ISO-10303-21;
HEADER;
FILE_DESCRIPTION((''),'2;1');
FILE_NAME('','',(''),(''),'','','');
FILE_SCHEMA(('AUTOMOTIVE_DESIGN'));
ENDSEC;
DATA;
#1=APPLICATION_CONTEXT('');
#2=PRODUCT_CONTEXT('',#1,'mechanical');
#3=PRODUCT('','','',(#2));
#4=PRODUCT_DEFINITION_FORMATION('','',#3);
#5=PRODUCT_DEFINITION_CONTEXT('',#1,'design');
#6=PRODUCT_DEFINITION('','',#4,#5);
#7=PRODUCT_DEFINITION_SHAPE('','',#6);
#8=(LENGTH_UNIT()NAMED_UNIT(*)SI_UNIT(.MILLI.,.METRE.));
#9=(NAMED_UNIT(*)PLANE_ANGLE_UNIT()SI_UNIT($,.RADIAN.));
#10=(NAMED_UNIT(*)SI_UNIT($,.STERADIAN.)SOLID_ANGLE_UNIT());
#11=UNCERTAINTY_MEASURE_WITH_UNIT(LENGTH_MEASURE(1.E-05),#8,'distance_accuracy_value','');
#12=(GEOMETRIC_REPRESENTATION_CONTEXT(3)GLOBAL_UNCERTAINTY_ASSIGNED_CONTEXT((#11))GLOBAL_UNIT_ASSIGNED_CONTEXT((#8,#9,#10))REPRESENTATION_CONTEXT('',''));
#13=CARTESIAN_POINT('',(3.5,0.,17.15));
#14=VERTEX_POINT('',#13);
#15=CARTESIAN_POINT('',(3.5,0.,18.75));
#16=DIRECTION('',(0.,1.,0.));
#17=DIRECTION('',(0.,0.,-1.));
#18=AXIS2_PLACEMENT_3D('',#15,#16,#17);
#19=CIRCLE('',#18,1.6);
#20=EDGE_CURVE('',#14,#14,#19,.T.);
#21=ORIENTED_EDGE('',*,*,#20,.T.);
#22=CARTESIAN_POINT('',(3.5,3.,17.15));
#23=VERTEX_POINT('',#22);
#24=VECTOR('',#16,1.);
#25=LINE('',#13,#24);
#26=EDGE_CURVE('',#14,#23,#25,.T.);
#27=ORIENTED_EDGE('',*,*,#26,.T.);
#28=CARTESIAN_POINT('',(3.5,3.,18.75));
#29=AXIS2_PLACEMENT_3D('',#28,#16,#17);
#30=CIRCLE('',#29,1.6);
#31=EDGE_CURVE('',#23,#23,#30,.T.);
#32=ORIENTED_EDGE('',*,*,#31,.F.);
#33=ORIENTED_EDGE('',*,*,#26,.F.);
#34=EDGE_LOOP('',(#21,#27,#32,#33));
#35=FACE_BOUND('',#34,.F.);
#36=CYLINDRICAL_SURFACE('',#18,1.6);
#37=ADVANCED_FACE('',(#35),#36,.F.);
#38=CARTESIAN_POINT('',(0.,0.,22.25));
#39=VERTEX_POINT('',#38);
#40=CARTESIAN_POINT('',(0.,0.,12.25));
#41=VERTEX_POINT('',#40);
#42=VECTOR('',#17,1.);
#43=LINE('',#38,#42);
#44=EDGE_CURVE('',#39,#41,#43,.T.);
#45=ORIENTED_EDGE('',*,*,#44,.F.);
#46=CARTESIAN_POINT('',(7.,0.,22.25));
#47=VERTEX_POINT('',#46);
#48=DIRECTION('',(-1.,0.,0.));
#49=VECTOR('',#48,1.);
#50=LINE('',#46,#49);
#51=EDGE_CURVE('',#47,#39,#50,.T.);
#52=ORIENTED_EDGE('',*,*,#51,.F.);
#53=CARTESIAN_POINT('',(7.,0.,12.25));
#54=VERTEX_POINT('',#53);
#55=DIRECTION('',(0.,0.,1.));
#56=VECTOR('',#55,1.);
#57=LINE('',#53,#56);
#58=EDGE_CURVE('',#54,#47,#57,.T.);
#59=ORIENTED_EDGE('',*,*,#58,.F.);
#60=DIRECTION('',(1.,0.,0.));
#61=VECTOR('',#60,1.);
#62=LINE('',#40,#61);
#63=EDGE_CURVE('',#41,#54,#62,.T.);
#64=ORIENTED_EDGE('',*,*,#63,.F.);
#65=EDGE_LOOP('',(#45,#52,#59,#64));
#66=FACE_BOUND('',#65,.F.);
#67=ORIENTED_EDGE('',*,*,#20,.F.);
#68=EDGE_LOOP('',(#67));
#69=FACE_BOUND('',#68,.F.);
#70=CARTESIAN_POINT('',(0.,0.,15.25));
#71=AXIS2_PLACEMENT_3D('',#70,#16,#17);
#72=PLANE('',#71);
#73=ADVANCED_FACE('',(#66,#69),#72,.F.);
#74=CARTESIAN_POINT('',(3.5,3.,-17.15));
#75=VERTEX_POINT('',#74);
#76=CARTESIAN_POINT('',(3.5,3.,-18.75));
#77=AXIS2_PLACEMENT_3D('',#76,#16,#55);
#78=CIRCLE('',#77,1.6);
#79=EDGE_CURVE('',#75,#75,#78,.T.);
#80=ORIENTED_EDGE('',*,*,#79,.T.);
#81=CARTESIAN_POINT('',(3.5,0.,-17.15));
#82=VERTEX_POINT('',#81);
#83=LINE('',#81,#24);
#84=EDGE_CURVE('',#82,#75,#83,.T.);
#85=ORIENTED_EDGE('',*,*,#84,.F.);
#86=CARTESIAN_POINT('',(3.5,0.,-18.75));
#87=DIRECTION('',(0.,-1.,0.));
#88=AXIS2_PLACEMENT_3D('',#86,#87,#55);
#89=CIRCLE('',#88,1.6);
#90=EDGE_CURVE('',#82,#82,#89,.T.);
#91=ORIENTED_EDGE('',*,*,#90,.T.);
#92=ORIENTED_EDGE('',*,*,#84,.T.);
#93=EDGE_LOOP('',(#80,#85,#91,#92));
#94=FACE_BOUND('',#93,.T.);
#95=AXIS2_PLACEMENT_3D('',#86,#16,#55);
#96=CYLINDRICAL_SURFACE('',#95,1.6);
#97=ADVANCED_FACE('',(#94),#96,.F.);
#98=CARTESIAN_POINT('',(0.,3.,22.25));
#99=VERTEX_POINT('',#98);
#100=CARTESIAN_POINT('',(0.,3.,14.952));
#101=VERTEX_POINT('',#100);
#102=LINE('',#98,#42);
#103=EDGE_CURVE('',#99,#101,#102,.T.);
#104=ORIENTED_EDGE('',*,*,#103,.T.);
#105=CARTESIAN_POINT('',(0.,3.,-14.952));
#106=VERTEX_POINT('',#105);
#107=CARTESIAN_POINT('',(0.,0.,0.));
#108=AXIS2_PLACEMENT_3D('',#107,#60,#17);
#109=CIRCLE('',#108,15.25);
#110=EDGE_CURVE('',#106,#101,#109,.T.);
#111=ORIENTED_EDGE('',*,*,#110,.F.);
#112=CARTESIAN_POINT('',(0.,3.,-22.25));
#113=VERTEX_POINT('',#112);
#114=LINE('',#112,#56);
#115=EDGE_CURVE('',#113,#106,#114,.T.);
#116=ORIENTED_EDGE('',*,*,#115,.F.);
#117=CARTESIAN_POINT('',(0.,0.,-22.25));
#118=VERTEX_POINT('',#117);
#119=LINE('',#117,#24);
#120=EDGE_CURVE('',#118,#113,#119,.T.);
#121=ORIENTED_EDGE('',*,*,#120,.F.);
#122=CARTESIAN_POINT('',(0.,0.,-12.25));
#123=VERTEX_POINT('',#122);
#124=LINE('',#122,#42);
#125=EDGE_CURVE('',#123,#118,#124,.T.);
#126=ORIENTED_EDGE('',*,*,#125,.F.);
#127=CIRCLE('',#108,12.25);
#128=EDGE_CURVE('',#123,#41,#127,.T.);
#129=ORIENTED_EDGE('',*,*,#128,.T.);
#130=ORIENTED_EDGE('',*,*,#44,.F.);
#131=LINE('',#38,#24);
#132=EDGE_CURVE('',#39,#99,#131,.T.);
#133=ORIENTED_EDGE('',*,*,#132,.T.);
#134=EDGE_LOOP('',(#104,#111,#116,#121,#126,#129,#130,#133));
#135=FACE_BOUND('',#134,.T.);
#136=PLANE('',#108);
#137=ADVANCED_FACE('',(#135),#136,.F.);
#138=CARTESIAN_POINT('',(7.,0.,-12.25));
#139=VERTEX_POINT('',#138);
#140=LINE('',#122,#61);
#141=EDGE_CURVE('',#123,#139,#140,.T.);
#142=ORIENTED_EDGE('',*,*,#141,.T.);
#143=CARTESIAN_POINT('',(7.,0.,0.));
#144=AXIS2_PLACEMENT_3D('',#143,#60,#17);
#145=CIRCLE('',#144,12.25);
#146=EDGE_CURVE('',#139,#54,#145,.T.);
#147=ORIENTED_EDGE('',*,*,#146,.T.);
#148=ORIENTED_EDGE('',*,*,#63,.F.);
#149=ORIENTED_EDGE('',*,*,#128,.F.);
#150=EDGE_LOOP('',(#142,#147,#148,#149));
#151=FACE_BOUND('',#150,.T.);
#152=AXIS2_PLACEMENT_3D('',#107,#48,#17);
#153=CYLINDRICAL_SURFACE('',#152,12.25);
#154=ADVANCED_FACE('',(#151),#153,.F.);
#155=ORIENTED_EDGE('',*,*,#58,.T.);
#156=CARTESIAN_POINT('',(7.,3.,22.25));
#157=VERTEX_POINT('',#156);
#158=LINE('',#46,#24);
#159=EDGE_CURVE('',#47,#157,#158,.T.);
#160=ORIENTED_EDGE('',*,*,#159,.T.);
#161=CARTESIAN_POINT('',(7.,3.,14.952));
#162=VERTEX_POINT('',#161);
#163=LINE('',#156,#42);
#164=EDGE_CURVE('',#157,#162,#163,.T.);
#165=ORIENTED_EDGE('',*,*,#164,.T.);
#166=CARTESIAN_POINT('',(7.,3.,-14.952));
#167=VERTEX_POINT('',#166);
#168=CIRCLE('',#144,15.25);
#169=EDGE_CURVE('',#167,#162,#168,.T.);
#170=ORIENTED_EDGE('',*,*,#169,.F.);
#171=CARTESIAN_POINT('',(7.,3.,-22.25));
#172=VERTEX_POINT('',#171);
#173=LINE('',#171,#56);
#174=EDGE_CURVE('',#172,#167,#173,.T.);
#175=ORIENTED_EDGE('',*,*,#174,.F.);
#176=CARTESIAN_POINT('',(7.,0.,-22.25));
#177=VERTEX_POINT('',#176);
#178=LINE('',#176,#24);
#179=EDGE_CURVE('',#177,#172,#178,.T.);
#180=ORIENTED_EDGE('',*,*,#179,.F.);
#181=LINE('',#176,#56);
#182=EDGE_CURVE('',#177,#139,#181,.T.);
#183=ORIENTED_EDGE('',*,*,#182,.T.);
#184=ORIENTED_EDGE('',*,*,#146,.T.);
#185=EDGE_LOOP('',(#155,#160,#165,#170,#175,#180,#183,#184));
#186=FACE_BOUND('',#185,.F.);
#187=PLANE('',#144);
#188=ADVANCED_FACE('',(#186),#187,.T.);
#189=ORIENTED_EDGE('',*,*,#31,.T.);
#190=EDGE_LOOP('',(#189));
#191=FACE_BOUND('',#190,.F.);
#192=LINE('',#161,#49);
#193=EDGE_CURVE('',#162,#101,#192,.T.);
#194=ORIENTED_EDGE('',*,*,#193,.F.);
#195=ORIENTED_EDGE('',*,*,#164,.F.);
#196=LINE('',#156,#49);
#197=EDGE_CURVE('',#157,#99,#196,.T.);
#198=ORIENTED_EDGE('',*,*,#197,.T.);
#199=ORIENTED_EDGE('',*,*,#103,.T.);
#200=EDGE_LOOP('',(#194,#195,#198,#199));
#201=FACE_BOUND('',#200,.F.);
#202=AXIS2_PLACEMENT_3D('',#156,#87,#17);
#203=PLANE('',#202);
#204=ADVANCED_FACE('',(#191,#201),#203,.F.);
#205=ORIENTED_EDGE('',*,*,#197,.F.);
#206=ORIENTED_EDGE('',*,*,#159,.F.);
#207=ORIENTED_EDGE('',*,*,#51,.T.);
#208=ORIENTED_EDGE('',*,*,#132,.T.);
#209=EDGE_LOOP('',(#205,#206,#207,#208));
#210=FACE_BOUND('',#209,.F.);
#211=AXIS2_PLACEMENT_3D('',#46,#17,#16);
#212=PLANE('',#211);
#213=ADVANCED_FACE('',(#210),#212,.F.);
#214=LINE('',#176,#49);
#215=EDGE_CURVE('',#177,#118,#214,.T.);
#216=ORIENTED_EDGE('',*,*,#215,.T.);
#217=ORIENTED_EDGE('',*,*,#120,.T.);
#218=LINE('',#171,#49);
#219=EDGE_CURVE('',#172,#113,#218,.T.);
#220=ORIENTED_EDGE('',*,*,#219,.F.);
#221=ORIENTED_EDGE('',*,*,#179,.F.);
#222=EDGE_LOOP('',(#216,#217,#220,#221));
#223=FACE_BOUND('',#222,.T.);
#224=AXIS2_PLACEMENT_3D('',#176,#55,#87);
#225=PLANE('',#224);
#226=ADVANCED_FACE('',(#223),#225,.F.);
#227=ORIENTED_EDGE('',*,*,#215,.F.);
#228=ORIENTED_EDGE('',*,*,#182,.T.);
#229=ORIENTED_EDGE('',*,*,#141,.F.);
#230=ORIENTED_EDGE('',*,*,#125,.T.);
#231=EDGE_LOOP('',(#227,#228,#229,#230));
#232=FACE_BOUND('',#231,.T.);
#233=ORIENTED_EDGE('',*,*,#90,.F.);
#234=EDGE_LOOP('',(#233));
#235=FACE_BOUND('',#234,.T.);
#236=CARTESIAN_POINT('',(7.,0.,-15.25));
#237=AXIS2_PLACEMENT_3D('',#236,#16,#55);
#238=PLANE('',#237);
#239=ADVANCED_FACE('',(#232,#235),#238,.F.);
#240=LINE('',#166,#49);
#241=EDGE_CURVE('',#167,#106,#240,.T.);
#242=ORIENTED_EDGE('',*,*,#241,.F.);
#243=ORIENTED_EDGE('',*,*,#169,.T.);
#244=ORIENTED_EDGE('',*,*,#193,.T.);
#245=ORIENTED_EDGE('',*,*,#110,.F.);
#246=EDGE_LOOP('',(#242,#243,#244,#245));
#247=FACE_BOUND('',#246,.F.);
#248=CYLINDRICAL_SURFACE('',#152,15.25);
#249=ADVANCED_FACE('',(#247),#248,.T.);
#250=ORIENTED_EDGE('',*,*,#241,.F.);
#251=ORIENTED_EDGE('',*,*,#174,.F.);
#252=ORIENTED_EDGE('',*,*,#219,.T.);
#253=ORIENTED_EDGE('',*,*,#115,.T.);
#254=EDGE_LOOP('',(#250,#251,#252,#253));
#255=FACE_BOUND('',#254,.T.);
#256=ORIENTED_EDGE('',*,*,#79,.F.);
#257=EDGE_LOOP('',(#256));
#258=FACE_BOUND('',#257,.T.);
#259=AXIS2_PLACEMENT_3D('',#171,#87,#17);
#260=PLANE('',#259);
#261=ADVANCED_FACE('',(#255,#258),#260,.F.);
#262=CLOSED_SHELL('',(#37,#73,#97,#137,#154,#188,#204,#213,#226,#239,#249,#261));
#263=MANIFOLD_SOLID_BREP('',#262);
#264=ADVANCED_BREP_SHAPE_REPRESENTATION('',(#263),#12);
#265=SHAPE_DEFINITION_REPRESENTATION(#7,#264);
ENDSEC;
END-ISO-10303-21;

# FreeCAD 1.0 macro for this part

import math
import FreeCAD as App
import Part
import Sketcher

V = App.Vector
Q = App.Units.Quantity

doc = App.newDocument("Part")
params = doc.addObject("Spreadsheet::Sheet", "Params")
for row, (alias, value) in enumerate([
    ("sketch1_radius", "12.25 mm"),
    ("sketch1_radius2", "15.25 mm"),
    ("pad1_length", "7 mm"),
    ("sketch2_width", "3 mm"),
    ("sketch2_height", "7 mm"),
    ("sketch2_radius", "15.25 mm"),
    ("pad2_length", "7 mm"),
    ("sketch3_diameter", "3.2 mm"),
    ("hole_diameter", "3.2 mm"),
], start=1):
    params.set(f"A{row}", alias)
    params.set(f"B{row}", "=" + value)
    params.setAlias(f"B{row}", alias)

body = doc.addObject("PartDesign::Body", "Body")

# Sketch on YZ plane
sketch1 = doc.addObject("Sketcher::SketchObject", "Sketch")
body.addObject(sketch1)
sketch1.AttachmentSupport = (doc.YZ_Plane, [""])
sketch1.MapMode = "FlatFace"
sketch1.addGeometry(Part.ArcOfCircle(Part.Circle(V(0, 0, 0), V(0, 0, 1), 12.2), math.radians(-90), math.radians(90)), False)
sketch1.addGeometry(Part.LineSegment(V(0, -12.2, 0), V(0, -15.2, 0)), False)
sketch1.addGeometry(Part.ArcOfCircle(Part.Circle(V(0, 0, 0), V(0, 0, 1), 15.2), math.radians(-90), math.radians(90)), False)
sketch1.addGeometry(Part.LineSegment(V(0, 15.2, 0), V(0, 12.2, 0)), False)
sketch1.addConstraint(Sketcher.Constraint("Coincident", 0, 1, 1, 1))
sketch1.addConstraint(Sketcher.Constraint("Coincident", 1, 2, 2, 1))
sketch1.addConstraint(Sketcher.Constraint("Coincident", 2, 2, 3, 1))
sketch1.addConstraint(Sketcher.Constraint("Coincident", 3, 2, 0, 2))
sketch1.addConstraint(Sketcher.Constraint("Vertical", 1))
sketch1.addConstraint(Sketcher.Constraint("Vertical", 3))
sketch1.addConstraint(Sketcher.Constraint("Coincident", 0, 3, -1, 1))
sketch1.addConstraint(Sketcher.Constraint("Coincident", 2, 3, -1, 1))
sketch1.addConstraint(Sketcher.Constraint("PointOnObject", 0, 1, -2))
sketch1.addConstraint(Sketcher.Constraint("PointOnObject", 2, 2, -2))
sketch1.addConstraint(Sketcher.Constraint("Radius", 0, Q("12.25 mm")))
sketch1.addConstraint(Sketcher.Constraint("Radius", 2, Q("15.25 mm")))
sketch1.setExpression("Constraints[10]", "Params.sketch1_radius")
sketch1.setExpression("Constraints[11]", "Params.sketch1_radius2")
pad1 = doc.addObject("PartDesign::Pad", "Pad")
body.addObject(pad1)
pad1.Profile = sketch1
pad1.setExpression("Length", "Params.pad1_length")

# Sketch on YZ plane
sketch2 = doc.addObject("Sketcher::SketchObject", "Sketch001")
body.addObject(sketch2)
sketch2.AttachmentSupport = (doc.YZ_Plane, [""])
sketch2.MapMode = "FlatFace"
sketch2.AttachmentOffset = App.Placement(V(0, 0, 7), App.Rotation())
sketch2.addGeometry(Part.ArcOfCircle(Part.Circle(V(0, 0, 0), V(0, 0, 1), 15.2), math.radians(78.65), math.radians(90)), False)
sketch2.addGeometry(Part.LineSegment(V(3, 15, 0), V(3, 22.2, 0)), False)
sketch2.addGeometry(Part.LineSegment(V(3, 22.2, 0), V(0, 22.2, 0)), False)
sketch2.addGeometry(Part.LineSegment(V(0, 22.2, 0), V(0, 15.2, 0)), False)
sketch2.addConstraint(Sketcher.Constraint("Coincident", 0, 1, 1, 1))
sketch2.addConstraint(Sketcher.Constraint("Coincident", 1, 2, 2, 1))
sketch2.addConstraint(Sketcher.Constraint("Coincident", 2, 2, 3, 1))
sketch2.addConstraint(Sketcher.Constraint("Coincident", 3, 2, 0, 2))
sketch2.addConstraint(Sketcher.Constraint("Vertical", 1))
sketch2.addConstraint(Sketcher.Constraint("Horizontal", 2))
sketch2.addConstraint(Sketcher.Constraint("Vertical", 3))
sketch2.addConstraint(Sketcher.Constraint("Coincident", 0, 3, -1, 1))
sketch2.addConstraint(Sketcher.Constraint("PointOnObject", 2, 2, -2))
sketch2.addConstraint(Sketcher.Constraint("DistanceX", 2, 2, 2, 1, Q("3 mm")))
sketch2.addConstraint(Sketcher.Constraint("DistanceY", 3, 2, 3, 1, Q("7 mm")))
sketch2.addConstraint(Sketcher.Constraint("Radius", 0, Q("15.25 mm")))
sketch2.setExpression("Constraints[9]", "Params.sketch2_width")
sketch2.setExpression("Constraints[10]", "Params.sketch2_height")
sketch2.setExpression("Constraints[11]", "Params.sketch2_radius")
pad2 = doc.addObject("PartDesign::Pad", "Pad001")
body.addObject(pad2)
pad2.Profile = sketch2
pad2.setExpression("Length", "Params.pad2_length")
pad2.Reversed = True

# Sketch on XZ plane
sketch3 = doc.addObject("Sketcher::SketchObject", "Sketch002")
body.addObject(sketch3)
sketch3.AttachmentSupport = (doc.XZ_Plane, [""])
sketch3.MapMode = "FlatFace"
sketch3.addGeometry(Part.Circle(V(3.5, 18.8, 0), V(0, 0, 1), 1.6), False)
sketch3.addConstraint(Sketcher.Constraint("Diameter", 0, Q("3.2 mm")))
sketch3.addConstraint(Sketcher.Constraint("DistanceX", -1, 1, 0, 3, Q("3.5 mm")))
sketch3.addConstraint(Sketcher.Constraint("DistanceY", -1, 1, 0, 3, Q("18.75 mm")))
sketch3.setExpression("Constraints[0]", "Params.sketch3_diameter")
doc.recompute()
hole = doc.addObject("PartDesign::Hole", "Hole")
body.addObject(hole)
hole.Profile = sketch3
hole.ThreadType = "None"
hole.setExpression("Diameter", "Params.hole_diameter")
hole.DepthType = "ThroughAll"
doc.recompute()

mirrored = doc.addObject("PartDesign::Mirrored", "Mirrored")
body.addObject(mirrored)
mirrored.Originals = [pad2, hole]
mirrored.MirrorPlane = (doc.XY_Plane, [""])
body.Tip = mirrored

doc.recompute()
